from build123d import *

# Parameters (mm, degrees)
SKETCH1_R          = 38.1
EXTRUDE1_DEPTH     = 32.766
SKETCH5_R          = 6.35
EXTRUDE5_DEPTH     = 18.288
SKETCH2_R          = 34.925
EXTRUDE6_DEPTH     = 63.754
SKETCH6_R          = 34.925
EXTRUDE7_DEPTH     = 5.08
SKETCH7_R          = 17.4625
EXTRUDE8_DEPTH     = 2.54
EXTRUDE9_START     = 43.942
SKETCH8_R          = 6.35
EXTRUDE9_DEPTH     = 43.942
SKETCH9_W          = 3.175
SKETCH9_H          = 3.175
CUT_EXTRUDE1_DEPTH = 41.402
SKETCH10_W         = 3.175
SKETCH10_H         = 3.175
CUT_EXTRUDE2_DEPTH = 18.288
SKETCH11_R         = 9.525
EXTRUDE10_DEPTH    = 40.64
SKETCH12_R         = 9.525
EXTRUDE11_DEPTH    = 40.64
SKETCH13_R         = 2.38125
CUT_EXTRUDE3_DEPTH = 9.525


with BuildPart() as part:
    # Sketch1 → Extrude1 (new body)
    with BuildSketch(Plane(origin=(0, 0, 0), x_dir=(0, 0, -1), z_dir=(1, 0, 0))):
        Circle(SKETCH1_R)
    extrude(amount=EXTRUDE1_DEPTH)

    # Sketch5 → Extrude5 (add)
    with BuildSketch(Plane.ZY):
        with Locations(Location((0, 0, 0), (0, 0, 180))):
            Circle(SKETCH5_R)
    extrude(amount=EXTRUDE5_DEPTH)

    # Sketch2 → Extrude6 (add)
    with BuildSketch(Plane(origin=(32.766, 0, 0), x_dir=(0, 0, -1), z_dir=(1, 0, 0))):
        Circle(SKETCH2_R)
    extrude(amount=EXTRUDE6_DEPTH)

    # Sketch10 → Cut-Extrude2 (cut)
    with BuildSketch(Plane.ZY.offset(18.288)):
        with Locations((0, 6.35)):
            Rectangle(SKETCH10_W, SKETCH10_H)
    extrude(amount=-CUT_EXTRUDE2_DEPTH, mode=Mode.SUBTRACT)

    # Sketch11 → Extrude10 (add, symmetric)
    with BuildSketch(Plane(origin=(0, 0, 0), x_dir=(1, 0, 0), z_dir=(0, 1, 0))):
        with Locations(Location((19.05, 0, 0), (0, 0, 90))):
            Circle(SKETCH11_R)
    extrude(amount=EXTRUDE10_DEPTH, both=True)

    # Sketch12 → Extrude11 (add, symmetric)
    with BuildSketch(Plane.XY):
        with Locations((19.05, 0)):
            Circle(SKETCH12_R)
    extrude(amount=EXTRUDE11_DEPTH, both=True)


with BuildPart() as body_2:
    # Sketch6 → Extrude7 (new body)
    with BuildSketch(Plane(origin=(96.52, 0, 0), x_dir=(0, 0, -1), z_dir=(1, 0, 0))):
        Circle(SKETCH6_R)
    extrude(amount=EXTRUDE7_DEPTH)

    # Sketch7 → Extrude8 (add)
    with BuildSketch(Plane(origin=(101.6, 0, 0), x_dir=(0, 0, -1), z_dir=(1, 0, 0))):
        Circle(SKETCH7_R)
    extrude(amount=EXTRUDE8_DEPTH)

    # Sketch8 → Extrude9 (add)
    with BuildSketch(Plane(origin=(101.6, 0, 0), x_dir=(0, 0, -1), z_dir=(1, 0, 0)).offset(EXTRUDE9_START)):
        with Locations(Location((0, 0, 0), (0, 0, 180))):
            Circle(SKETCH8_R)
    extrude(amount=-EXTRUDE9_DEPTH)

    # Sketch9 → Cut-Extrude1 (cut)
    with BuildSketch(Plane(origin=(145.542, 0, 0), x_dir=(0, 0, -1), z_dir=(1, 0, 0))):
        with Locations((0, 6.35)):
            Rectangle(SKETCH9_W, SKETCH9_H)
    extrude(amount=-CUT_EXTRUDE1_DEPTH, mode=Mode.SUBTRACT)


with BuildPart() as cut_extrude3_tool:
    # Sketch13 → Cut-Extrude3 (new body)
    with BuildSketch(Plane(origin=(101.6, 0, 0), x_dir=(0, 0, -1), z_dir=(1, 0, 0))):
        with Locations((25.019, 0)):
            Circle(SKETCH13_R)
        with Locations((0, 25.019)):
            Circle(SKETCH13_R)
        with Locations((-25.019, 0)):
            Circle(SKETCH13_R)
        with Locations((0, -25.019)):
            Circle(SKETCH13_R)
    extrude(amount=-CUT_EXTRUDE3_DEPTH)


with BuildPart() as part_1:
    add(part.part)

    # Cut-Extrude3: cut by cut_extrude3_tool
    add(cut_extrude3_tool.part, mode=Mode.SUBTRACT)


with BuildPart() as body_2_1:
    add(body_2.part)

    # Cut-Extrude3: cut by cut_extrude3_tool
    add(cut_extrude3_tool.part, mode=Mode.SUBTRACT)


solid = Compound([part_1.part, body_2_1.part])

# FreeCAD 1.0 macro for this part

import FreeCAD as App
import Part
import Sketcher
from FreeCAD import Vector
Q = App.Units.Quantity


def add_polygon(sketch, points):
    """Adds a closed chain of lines whose ends are joined by coincident constraints."""
    first, n = sketch.GeometryCount, len(points)
    for a, b in zip(points, points[1:] + points[:1]):
        sketch.addGeometry(Part.LineSegment(App.Vector(*a, 0), App.Vector(*b, 0)), False)
    for i in range(n):
        sketch.addConstraint(Sketcher.Constraint("Coincident", first + i, 2, first + (i + 1) % n, 1))

doc = App.newDocument("Part")
params = doc.addObject("Spreadsheet::Sheet", "Params")
for row, (alias, value) in enumerate([
    ("sketch1_diameter", "3 in"),
    ("pad1_length", "1.29 in"),
    ("sketch2_diameter", "0.5 in"),
    ("pad2_length", "0.72 in"),
    ("sketch3_diameter", "2.75 in"),
    ("pad3_length", "2.51 in"),
    ("sketch4_width", "0.125 in"),
    ("pocket1_length", "0.72 in"),
    ("sketch5_diameter", "0.75 in"),
    ("pad4_length", "3.2 in"),
    ("sketch6_diameter", "0.75 in"),
    ("pad5_length", "3.2 in"),
    ("sketch7_diameter", "2.75 in"),
    ("pad6_length", "0.2 in"),
    ("sketch8_diameter", "1.375 in"),
    ("pad7_length", "0.1 in"),
    ("sketch9_diameter", "0.5 in"),
    ("pad8_length", "1.73 in"),
    ("sketch10_width", "0.125 in"),
    ("pocket2_length", "1.63 in"),
    ("sketch11_diameter", "0.1875 in"),
    ("pad9_length", "0.375 in"),
], start=1):
    params.set(f"A{row}", alias)
    params.set(f"B{row}", "=" + value)
    params.setAlias(f"B{row}", alias)

body = doc.addObject("PartDesign::Body", "Body")

sketch1 = body.newObject("Sketcher::SketchObject", "Sketch")
sketch1.AttachmentSupport = (doc.getObject("YZ_Plane"), [""])
sketch1.MapMode = "FlatFace"
sketch1.addGeometry(Part.Circle(Vector(0, 0, 0), Vector(0, 0, 1), 38.1), False)
sketch1.addConstraint([
    Sketcher.Constraint("Coincident", 0, 3, -1, 1),
    Sketcher.Constraint("Diameter", 0, Q("3 in")),
])
sketch1.setExpression("Constraints[1]", "Params.sketch1_diameter")
pad1 = body.newObject("PartDesign::Pad", "Pad")
pad1.Profile = sketch1
pad1.setExpression("Length", "Params.pad1_length")

sketch2 = body.newObject("Sketcher::SketchObject", "Sketch001")
sketch2.AttachmentSupport = (doc.getObject("YZ_Plane"), [""])
sketch2.MapMode = "FlatFace"
sketch2.addGeometry(Part.Circle(Vector(0, 0, 0), Vector(0, 0, 1), 6.35), False)
sketch2.addConstraint([
    Sketcher.Constraint("Coincident", 0, 3, -1, 1),
    Sketcher.Constraint("Diameter", 0, Q("0.5 in")),
])
sketch2.setExpression("Constraints[1]", "Params.sketch2_diameter")
pad2 = body.newObject("PartDesign::Pad", "Pad001")
pad2.Profile = sketch2
pad2.setExpression("Length", "Params.pad2_length")
pad2.Reversed = True

sketch3 = body.newObject("Sketcher::SketchObject", "Sketch002")
sketch3.AttachmentSupport = (doc.getObject("YZ_Plane"), [""])
sketch3.MapMode = "FlatFace"
sketch3.AttachmentOffset = App.Placement(Vector(0, 0, 1.29 * 25.4), App.Rotation())
sketch3.addGeometry(Part.Circle(Vector(0, 0, 0), Vector(0, 0, 1), 34.925), False)
sketch3.addConstraint([
    Sketcher.Constraint("Coincident", 0, 3, -1, 1),
    Sketcher.Constraint("Diameter", 0, Q("2.75 in")),
])
sketch3.setExpression("Constraints[1]", "Params.sketch3_diameter")
pad3 = body.newObject("PartDesign::Pad", "Pad002")
pad3.Profile = sketch3
pad3.setExpression("Length", "Params.pad3_length")

sketch4 = body.newObject("Sketcher::SketchObject", "Sketch003")
sketch4.AttachmentSupport = (doc.getObject("YZ_Plane"), [""])
sketch4.MapMode = "FlatFace"
sketch4.AttachmentOffset = App.Placement(Vector(0, 0, -0.72 * 25.4), App.Rotation())
add_polygon(sketch4, [(7.9375, -1.5875), (4.7625, -1.5875), (4.7625, 1.5875), (7.9375, 1.5875)])
sketch4.addConstraint([
    Sketcher.Constraint("Horizontal", 0),
    Sketcher.Constraint("Vertical", 1),
    Sketcher.Constraint("Horizontal", 2),
    Sketcher.Constraint("Vertical", 3),
    Sketcher.Constraint("Equal", 2, 1),
    Sketcher.Constraint("DistanceX", 0, 2, 0, 1, Q("0.125 in")),
    Sketcher.Constraint("DistanceX", -1, 1, 0, 2, Q("0.1875 in")),
    Sketcher.Constraint("DistanceY", 0, 2, -1, 1, Q("0.0625 in")),
])
sketch4.setExpression("Constraints[9]", "Params.sketch4_width")
pocket1 = body.newObject("PartDesign::Pocket", "Pocket")
pocket1.Profile = sketch4
pocket1.setExpression("Length", "Params.pocket1_length")
pocket1.Reversed = True

sketch5 = body.newObject("Sketcher::SketchObject", "Sketch004")
sketch5.AttachmentSupport = (doc.getObject("XZ_Plane"), [""])
sketch5.MapMode = "FlatFace"
sketch5.addGeometry(Part.Circle(Vector(19.05, 0, 0), Vector(0, 0, 1), 9.525), False)
sketch5.addConstraint([
    Sketcher.Constraint("PointOnObject", 0, 3, -1),
    Sketcher.Constraint("Diameter", 0, Q("0.75 in")),
    Sketcher.Constraint("DistanceX", -1, 1, 0, 3, Q("0.75 in")),
])
sketch5.setExpression("Constraints[1]", "Params.sketch5_diameter")
pad4 = body.newObject("PartDesign::Pad", "Pad003")
pad4.Profile = sketch5
pad4.setExpression("Length", "Params.pad4_length")
pad4.Midplane = True

sketch6 = body.newObject("Sketcher::SketchObject", "Sketch005")
sketch6.AttachmentSupport = (doc.getObject("XY_Plane"), [""])
sketch6.MapMode = "FlatFace"
sketch6.addGeometry(Part.Circle(Vector(19.05, 0, 0), Vector(0, 0, 1), 9.525), False)
sketch6.addConstraint([
    Sketcher.Constraint("PointOnObject", 0, 3, -1),
    Sketcher.Constraint("Diameter", 0, Q("0.75 in")),
    Sketcher.Constraint("DistanceX", -1, 1, 0, 3, Q("0.75 in")),
])
sketch6.setExpression("Constraints[1]", "Params.sketch6_diameter")
pad5 = body.newObject("PartDesign::Pad", "Pad004")
pad5.Profile = sketch6
pad5.setExpression("Length", "Params.pad5_length")
pad5.Midplane = True
body2 = doc.addObject("PartDesign::Body", "Body001")

sketch7 = body2.newObject("Sketcher::SketchObject", "Sketch006")
sketch7.AttachmentSupport = (doc.getObject("YZ_Plane001"), [""])
sketch7.MapMode = "FlatFace"
sketch7.AttachmentOffset = App.Placement(Vector(0, 0, 3.8 * 25.4), App.Rotation())
sketch7.addGeometry(Part.Circle(Vector(0, 0, 0), Vector(0, 0, 1), 34.925), False)
sketch7.addConstraint([
    Sketcher.Constraint("Coincident", 0, 3, -1, 1),
    Sketcher.Constraint("Diameter", 0, Q("2.75 in")),
])
sketch7.setExpression("Constraints[1]", "Params.sketch7_diameter")
pad6 = body2.newObject("PartDesign::Pad", "Pad005")
pad6.Profile = sketch7
pad6.setExpression("Length", "Params.pad6_length")

sketch8 = body2.newObject("Sketcher::SketchObject", "Sketch007")
sketch8.AttachmentSupport = (doc.getObject("YZ_Plane001"), [""])
sketch8.MapMode = "FlatFace"
sketch8.AttachmentOffset = App.Placement(Vector(0, 0, 4 * 25.4), App.Rotation())
sketch8.addGeometry(Part.Circle(Vector(0, 0, 0), Vector(0, 0, 1), 17.4625), False)
sketch8.addConstraint([
    Sketcher.Constraint("Coincident", 0, 3, -1, 1),
    Sketcher.Constraint("Diameter", 0, Q("1.375 in")),
])
sketch8.setExpression("Constraints[1]", "Params.sketch8_diameter")
pad7 = body2.newObject("PartDesign::Pad", "Pad006")
pad7.Profile = sketch8
pad7.setExpression("Length", "Params.pad7_length")

sketch9 = body2.newObject("Sketcher::SketchObject", "Sketch008")
sketch9.AttachmentSupport = (doc.getObject("YZ_Plane001"), [""])
sketch9.MapMode = "FlatFace"
sketch9.AttachmentOffset = App.Placement(Vector(0, 0, 5.73 * 25.4), App.Rotation())
sketch9.addGeometry(Part.Circle(Vector(0, 0, 0), Vector(0, 0, 1), 6.35), False)
sketch9.addConstraint([
    Sketcher.Constraint("Coincident", 0, 3, -1, 1),
    Sketcher.Constraint("Diameter", 0, Q("0.5 in")),
])
sketch9.setExpression("Constraints[1]", "Params.sketch9_diameter")
pad8 = body2.newObject("PartDesign::Pad", "Pad007")
pad8.Profile = sketch9
pad8.setExpression("Length", "Params.pad8_length")
pad8.Reversed = True

sketch10 = body2.newObject("Sketcher::SketchObject", "Sketch009")
sketch10.AttachmentSupport = (doc.getObject("YZ_Plane001"), [""])
sketch10.MapMode = "FlatFace"
sketch10.AttachmentOffset = App.Placement(Vector(0, 0, 5.73 * 25.4), App.Rotation())
add_polygon(sketch10, [(7.9375, 1.5875), (4.7625, 1.5875), (4.7625, -1.5875), (7.9375, -1.5875)])
sketch10.addConstraint([
    Sketcher.Constraint("Horizontal", 0),
    Sketcher.Constraint("Vertical", 1),
    Sketcher.Constraint("Horizontal", 2),
    Sketcher.Constraint("Vertical", 3),
    Sketcher.Constraint("Equal", 2, 1),
    Sketcher.Constraint("DistanceX", 0, 2, 0, 1, Q("0.125 in")),
    Sketcher.Constraint("DistanceX", -1, 1, 0, 2, Q("0.1875 in")),
    Sketcher.Constraint("DistanceY", -1, 1, 0, 2, Q("0.0625 in")),
])
sketch10.setExpression("Constraints[9]", "Params.sketch10_width")
pocket2 = body2.newObject("PartDesign::Pocket", "Pocket001")
pocket2.Profile = sketch10
pocket2.setExpression("Length", "Params.pocket2_length")
body3 = doc.addObject("PartDesign::Body", "Body002")
body3.AllowCompound = True

sketch11 = body3.newObject("Sketcher::SketchObject", "Sketch010")
sketch11.AttachmentSupport = (doc.getObject("YZ_Plane002"), [""])
sketch11.MapMode = "FlatFace"
sketch11.AttachmentOffset = App.Placement(Vector(0, 0, 4 * 25.4), App.Rotation())
sketch11.addGeometry([
    Part.Circle(Vector(0, -25.019, 0), Vector(0, 0, 1), 2.38125),
    Part.Circle(Vector(25.019, 0, 0), Vector(0, 0, 1), 2.38125),
    Part.Circle(Vector(0, 25.019, 0), Vector(0, 0, 1), 2.38125),
    Part.Circle(Vector(-25.019, 0, 0), Vector(0, 0, 1), 2.38125),
], False)
sketch11.addConstraint([
    Sketcher.Constraint("Equal", 0, 1),
    Sketcher.Constraint("Equal", 1, 2),
    Sketcher.Constraint("Equal", 2, 3),
    Sketcher.Constraint("Symmetric", 0, 3, 2, 3, -1, 1),
    Sketcher.Constraint("Symmetric", 1, 3, 3, 3, -1, 1),
    Sketcher.Constraint("PointOnObject", 0, 3, -2),
    Sketcher.Constraint("PointOnObject", 1, 3, -1),
    Sketcher.Constraint("Diameter", 0, Q("0.1875 in")),
    Sketcher.Constraint("DistanceY", 0, 3, 2, 3, Q("1.97 in")),
    Sketcher.Constraint("DistanceX", 3, 3, 1, 3, Q("1.97 in")),
])
sketch11.setExpression("Constraints[7]", "Params.sketch11_diameter")
pad9 = body3.newObject("PartDesign::Pad", "Pad008")
pad9.Profile = sketch11
pad9.setExpression("Length", "Params.pad9_length")
pad9.Reversed = True
doc.recompute()

body4 = doc.addObject("PartDesign::Body", "Body003")
body4.BaseFeature = body3
boolean = body.newObject("PartDesign::Boolean", "Boolean")
boolean.Type = "Cut"
boolean.addObjects([body4])
doc.recompute()

boolean2 = body2.newObject("PartDesign::Boolean", "Boolean001")
boolean2.Type = "Cut"
boolean2.addObjects([body3])

doc.recompute()
